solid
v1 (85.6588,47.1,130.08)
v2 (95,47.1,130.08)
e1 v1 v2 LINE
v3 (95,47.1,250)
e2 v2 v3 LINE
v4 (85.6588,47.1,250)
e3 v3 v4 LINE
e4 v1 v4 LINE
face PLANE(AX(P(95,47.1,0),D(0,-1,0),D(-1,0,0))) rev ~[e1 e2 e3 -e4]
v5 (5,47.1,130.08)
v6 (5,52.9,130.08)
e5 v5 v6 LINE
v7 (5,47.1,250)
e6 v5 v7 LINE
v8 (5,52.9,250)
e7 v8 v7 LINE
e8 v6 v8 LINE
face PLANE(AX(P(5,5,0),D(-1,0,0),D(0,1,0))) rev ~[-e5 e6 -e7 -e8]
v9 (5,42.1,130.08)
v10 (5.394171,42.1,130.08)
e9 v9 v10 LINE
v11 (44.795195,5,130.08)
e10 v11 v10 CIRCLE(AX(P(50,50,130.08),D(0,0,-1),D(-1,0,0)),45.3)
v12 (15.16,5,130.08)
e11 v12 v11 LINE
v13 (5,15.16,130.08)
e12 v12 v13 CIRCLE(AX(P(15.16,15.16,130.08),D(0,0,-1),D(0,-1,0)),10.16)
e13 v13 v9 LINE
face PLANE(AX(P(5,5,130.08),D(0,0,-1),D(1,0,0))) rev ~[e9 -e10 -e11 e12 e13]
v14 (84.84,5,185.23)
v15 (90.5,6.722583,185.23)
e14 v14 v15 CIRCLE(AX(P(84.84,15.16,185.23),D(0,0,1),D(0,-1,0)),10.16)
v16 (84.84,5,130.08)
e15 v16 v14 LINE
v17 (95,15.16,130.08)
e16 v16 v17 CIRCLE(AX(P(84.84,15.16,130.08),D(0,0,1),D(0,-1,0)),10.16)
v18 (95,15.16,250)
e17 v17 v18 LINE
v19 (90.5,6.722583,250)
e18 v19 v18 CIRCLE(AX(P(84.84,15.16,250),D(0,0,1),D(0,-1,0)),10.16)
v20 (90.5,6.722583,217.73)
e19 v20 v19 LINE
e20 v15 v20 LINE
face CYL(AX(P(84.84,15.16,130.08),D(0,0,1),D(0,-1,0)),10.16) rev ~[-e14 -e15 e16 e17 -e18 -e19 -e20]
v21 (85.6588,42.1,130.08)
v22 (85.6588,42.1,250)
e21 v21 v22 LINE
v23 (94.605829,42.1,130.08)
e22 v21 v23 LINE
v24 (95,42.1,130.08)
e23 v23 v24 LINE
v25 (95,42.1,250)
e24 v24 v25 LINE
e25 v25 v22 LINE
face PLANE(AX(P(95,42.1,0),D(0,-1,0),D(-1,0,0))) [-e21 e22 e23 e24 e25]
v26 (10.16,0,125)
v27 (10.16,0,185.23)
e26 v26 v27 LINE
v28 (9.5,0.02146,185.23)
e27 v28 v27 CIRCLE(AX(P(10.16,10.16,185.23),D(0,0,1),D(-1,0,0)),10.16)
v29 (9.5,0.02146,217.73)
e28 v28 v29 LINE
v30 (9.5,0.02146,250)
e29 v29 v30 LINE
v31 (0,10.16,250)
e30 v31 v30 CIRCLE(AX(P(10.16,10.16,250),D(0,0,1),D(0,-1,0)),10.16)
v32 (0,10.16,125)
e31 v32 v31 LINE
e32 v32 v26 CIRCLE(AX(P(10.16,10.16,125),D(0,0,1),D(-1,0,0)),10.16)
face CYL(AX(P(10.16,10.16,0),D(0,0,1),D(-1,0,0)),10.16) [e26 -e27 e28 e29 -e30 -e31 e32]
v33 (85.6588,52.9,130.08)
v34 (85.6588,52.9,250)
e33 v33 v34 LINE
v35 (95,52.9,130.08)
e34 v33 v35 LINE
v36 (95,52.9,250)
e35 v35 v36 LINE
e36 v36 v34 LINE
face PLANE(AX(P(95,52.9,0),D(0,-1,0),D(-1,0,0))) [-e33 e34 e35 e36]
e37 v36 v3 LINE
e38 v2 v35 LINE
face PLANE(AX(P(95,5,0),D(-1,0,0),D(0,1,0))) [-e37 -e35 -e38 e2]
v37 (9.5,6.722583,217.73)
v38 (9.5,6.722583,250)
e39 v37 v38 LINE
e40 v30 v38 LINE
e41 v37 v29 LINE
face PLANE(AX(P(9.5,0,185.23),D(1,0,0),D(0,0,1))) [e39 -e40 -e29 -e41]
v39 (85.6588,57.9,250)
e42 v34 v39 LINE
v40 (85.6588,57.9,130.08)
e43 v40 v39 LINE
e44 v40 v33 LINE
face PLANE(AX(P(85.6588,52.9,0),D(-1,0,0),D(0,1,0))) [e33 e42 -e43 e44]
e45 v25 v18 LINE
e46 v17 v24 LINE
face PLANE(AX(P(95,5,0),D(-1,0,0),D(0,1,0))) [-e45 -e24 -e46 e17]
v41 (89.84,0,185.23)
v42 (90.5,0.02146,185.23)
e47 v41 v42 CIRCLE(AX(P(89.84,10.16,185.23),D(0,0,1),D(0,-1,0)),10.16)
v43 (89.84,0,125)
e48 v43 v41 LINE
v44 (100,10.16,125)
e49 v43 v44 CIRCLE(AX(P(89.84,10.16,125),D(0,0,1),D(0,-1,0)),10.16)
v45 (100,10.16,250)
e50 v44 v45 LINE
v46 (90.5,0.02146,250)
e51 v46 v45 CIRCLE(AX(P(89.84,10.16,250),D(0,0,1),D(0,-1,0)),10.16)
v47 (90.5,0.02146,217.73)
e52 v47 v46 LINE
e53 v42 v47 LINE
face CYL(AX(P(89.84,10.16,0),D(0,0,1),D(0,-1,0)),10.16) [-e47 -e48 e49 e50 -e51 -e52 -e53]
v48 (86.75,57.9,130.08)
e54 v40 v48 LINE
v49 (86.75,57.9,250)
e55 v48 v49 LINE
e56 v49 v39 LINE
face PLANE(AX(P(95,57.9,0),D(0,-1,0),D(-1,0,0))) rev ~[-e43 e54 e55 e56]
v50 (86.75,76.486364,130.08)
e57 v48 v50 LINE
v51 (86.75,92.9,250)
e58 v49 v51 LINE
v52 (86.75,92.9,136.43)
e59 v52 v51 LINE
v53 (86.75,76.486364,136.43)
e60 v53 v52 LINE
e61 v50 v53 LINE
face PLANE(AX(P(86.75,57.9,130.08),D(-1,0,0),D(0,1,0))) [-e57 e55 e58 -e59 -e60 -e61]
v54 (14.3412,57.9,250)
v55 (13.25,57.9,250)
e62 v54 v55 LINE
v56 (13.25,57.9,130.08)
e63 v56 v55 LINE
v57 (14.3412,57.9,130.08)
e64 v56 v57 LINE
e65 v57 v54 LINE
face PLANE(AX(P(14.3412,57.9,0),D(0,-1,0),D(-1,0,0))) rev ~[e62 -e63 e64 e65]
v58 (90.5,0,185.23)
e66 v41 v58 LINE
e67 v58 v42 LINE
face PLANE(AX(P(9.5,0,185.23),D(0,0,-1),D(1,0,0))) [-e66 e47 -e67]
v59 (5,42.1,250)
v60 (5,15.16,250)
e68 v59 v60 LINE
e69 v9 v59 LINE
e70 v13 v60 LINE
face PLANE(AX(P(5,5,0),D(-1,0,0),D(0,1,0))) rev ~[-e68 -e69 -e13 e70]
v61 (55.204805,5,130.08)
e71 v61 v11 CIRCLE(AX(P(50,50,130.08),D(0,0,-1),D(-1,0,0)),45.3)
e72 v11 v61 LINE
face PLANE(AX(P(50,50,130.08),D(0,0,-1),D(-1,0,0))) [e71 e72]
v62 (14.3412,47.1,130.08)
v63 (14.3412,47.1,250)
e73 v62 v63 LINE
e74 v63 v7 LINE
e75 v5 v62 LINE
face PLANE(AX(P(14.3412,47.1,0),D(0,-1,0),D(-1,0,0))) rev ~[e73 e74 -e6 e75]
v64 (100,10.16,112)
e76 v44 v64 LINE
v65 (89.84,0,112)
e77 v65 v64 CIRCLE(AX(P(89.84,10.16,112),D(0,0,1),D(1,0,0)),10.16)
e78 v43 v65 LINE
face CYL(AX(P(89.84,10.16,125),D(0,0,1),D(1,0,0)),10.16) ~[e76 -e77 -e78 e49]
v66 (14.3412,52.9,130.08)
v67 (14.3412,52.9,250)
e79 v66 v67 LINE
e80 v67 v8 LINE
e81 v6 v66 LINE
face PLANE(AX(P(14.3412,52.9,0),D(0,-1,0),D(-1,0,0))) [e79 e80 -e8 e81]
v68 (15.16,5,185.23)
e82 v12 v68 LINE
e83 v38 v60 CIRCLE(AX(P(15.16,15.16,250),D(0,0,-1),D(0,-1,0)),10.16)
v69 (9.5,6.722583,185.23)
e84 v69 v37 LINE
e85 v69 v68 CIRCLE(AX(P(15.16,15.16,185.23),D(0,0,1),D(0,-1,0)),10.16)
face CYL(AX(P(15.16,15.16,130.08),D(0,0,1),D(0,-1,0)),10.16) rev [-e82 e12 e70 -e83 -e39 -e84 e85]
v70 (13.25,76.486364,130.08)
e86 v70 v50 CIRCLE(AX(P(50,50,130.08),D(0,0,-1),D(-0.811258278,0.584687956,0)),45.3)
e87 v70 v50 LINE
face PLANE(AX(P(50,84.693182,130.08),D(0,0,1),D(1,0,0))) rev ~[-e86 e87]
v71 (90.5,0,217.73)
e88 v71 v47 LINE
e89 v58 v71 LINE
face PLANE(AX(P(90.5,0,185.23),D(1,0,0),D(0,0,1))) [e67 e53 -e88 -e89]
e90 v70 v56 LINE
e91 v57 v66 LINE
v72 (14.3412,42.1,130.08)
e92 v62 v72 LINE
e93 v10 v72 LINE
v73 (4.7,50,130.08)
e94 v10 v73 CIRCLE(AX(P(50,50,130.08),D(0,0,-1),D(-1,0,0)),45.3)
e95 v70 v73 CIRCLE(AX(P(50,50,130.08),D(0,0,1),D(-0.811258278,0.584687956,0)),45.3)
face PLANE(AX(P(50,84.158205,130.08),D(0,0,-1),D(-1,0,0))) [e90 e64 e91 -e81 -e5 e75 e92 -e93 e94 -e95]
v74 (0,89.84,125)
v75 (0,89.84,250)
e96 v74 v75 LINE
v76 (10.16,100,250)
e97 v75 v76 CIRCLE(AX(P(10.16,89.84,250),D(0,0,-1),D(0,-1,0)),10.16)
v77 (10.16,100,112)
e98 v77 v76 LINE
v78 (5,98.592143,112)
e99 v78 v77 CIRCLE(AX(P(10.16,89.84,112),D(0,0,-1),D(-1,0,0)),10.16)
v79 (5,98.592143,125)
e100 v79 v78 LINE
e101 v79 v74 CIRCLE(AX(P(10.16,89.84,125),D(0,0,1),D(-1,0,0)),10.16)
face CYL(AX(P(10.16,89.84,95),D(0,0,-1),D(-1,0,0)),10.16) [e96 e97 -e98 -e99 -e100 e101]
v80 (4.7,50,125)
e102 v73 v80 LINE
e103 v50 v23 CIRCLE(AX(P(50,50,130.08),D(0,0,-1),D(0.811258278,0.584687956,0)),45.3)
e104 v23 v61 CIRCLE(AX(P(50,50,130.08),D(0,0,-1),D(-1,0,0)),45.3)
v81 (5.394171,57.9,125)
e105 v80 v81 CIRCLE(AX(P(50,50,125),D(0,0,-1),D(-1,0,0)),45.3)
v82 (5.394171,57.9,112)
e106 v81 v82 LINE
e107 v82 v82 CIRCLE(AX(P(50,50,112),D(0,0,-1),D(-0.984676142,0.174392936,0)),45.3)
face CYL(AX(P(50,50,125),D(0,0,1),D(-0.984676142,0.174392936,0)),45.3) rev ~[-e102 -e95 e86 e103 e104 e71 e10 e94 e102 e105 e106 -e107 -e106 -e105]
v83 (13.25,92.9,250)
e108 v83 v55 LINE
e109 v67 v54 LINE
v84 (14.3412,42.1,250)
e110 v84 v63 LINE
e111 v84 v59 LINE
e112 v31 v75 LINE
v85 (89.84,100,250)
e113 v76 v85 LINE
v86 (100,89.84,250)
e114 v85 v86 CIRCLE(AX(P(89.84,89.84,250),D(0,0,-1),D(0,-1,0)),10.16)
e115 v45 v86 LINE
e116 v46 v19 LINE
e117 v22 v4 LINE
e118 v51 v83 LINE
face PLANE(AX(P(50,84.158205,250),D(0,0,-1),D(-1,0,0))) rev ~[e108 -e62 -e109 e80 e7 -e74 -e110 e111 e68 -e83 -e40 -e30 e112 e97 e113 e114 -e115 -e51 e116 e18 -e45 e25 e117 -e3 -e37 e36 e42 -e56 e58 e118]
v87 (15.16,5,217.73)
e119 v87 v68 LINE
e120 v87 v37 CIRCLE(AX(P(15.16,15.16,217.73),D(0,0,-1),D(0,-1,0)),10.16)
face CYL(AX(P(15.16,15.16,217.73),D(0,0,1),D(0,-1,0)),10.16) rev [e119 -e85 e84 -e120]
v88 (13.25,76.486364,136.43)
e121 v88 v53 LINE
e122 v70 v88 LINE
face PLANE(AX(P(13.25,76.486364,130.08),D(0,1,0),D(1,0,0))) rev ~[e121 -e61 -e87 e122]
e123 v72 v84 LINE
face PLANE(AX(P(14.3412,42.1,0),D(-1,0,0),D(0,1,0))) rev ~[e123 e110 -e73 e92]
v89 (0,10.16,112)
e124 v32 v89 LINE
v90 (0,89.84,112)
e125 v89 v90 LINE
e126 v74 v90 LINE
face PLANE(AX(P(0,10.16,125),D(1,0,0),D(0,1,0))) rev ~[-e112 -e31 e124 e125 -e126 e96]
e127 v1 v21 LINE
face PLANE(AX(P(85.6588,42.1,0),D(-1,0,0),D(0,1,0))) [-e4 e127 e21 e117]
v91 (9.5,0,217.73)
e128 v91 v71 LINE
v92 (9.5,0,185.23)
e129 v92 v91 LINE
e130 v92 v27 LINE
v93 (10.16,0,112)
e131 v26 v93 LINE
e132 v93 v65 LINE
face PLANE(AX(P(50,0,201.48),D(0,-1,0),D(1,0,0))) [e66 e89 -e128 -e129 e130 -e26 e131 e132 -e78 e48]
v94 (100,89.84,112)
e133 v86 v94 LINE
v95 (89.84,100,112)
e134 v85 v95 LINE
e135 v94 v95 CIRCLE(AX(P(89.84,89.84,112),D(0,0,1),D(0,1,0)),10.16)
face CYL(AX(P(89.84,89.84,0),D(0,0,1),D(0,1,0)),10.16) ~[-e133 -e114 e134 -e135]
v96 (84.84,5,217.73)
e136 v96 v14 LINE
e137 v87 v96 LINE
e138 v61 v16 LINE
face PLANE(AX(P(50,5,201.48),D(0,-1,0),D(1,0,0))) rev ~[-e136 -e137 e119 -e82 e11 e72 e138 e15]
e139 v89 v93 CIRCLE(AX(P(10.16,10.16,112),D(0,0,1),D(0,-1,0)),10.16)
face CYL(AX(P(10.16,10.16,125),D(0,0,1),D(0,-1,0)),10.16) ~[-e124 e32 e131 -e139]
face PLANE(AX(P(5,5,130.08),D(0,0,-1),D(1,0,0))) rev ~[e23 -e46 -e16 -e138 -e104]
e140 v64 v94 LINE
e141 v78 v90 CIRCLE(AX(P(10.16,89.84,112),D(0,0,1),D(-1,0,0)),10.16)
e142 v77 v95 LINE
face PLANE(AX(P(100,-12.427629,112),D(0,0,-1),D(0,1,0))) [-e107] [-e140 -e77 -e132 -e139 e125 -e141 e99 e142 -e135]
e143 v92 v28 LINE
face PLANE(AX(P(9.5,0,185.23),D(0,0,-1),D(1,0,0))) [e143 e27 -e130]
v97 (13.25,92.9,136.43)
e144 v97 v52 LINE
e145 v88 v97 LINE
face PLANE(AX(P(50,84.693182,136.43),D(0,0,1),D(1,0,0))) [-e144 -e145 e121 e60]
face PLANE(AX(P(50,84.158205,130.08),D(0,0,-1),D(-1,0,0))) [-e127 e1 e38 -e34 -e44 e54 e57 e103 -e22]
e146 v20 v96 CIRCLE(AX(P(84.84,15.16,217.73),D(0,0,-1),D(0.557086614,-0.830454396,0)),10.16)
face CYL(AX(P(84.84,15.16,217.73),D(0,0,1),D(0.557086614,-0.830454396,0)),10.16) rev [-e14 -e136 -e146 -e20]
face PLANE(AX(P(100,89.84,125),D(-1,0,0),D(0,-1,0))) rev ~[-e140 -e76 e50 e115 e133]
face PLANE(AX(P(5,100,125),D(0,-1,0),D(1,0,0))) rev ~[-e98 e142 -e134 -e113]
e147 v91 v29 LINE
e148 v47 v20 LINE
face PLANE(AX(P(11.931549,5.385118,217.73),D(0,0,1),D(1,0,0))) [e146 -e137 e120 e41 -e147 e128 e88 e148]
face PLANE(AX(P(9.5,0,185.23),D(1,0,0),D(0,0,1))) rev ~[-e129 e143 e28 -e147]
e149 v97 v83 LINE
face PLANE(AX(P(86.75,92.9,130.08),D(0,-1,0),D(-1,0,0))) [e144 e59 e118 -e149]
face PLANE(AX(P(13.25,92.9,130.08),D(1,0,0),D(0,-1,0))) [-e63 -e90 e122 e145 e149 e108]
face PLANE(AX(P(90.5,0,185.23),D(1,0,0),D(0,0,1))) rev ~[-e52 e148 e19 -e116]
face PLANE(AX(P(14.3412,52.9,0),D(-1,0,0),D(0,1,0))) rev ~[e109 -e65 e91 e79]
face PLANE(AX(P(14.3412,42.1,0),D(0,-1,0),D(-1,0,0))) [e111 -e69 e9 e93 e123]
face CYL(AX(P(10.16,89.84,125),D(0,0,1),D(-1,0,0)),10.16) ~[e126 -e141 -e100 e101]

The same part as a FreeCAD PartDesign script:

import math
import FreeCAD as App
import Part
import Sketcher

V = App.Vector
Q = App.Units.Quantity


def edges_at(feature, points):
    """Names of the edges that pass closest to the given points."""
    edges = feature.Shape.Edges
    near = lambda p: min(range(len(edges)), key=lambda i: edges[i].distToShape(Part.Vertex(*p))[0])
    return sorted({f"Edge{near(p) + 1}" for p in points})


def add_polygon(sketch, points):
    """Adds a closed chain of lines whose ends are joined by coincident constraints."""
    first, n = sketch.GeometryCount, len(points)
    for a, b in zip(points, points[1:] + points[:1]):
        sketch.addGeometry(Part.LineSegment(App.Vector(*a, 0), App.Vector(*b, 0)), False)
    for i in range(n):
        sketch.addConstraint(Sketcher.Constraint("Coincident", first + i, 2, first + (i + 1) % n, 1))

doc = App.newDocument("Part")
body = doc.addObject("PartDesign::Body", "Body")

# Sketch on XY plane
sketch1 = body.newObject("Sketcher::SketchObject", "Sketch")
sketch1.AttachmentSupport = (doc.getObject("XY_Plane"), [""])
sketch1.MapMode = "FlatFace"
add_polygon(sketch1, [(0, 100), (0, 0), (100, 0), (100, 100)])  # lines 0-3
sketch1.addConstraint([
    Sketcher.Constraint("Vertical", 0),
    Sketcher.Constraint("Horizontal", 1),
    Sketcher.Constraint("Vertical", 2),
    Sketcher.Constraint("Horizontal", 3),
    Sketcher.Constraint("Coincident", 0, 2, -1, 1),
    Sketcher.Constraint("Equal", 3, 0),
    Sketcher.Constraint("DistanceX", 1, 1, 1, 2, Q("100 mm")),
])
pad1 = body.newObject("PartDesign::Pad", "Pad")
pad1.Profile = sketch1
pad1.Length = 250

# Sketch on XY plane
sketch2 = body.newObject("Sketcher::SketchObject", "Sketch001")
sketch2.AttachmentSupport = (doc.getObject("XY_Plane"), [""])
sketch2.MapMode = "FlatFace"
add_polygon(sketch2, [(95, 95), (95, 5), (5, 5), (5, 95)])  # lines 0-3
sketch2.addConstraint([
    Sketcher.Constraint("Vertical", 0),
    Sketcher.Constraint("Horizontal", 1),
    Sketcher.Constraint("Vertical", 2),
    Sketcher.Constraint("Horizontal", 3),
    Sketcher.Constraint("Equal", 3, 0),
    Sketcher.Constraint("DistanceX", 1, 2, 1, 1, Q("90 mm")),
    Sketcher.Constraint("DistanceX", -1, 1, 0, 2, Q("95 mm")),
    Sketcher.Constraint("DistanceY", -1, 1, 0, 2, Q("5 mm")),
])
pocket1 = body.newObject("PartDesign::Pocket", "Pocket")
pocket1.Profile = sketch2
pocket1.Type = "ThroughAll"
pocket1.Reversed = True
doc.recompute()

fillet = body.newObject("PartDesign::Fillet", "Fillet")
fillet.Base = (pocket1, edges_at(pocket1, [
    (0, 100, 125),
    (0, 0, 125),
    (100, 0, 125),
    (100, 100, 125),
]))
fillet.Radius = 10.16

# Sketch on XY plane
sketch3 = body.newObject("Sketcher::SketchObject", "Sketch002")
sketch3.AttachmentSupport = (doc.getObject("XY_Plane"), [""])
sketch3.MapMode = "FlatFace"
add_polygon(sketch3, [(95, 57.9), (95, 52.9), (85.6588, 52.9), (85.6588, 57.9)])  # lines 0-3
add_polygon(sketch3, [(95, 47.1), (95, 42.1), (85.6588, 42.1), (85.6588, 47.1)])  # lines 4-7
add_polygon(sketch3, [(14.3412, 47.1), (14.3412, 42.1), (5, 42.1), (5, 47.1)])  # lines 8-11
add_polygon(sketch3, [(14.3412, 57.9), (14.3412, 52.9), (5, 52.9), (5, 57.9)])  # lines 12-15
sketch3.addConstraint([
    Sketcher.Constraint("Vertical", 0),
    Sketcher.Constraint("Horizontal", 1),
    Sketcher.Constraint("Vertical", 2),
    Sketcher.Constraint("Horizontal", 3),
    Sketcher.Constraint("Vertical", 4),
    Sketcher.Constraint("Horizontal", 5),
    Sketcher.Constraint("Vertical", 6),
    Sketcher.Constraint("Horizontal", 7),
    Sketcher.Constraint("Vertical", 8),
    Sketcher.Constraint("Horizontal", 9),
    Sketcher.Constraint("Vertical", 10),
    Sketcher.Constraint("Horizontal", 11),
    Sketcher.Constraint("Vertical", 12),
    Sketcher.Constraint("Horizontal", 13),
    Sketcher.Constraint("Vertical", 14),
    Sketcher.Constraint("Horizontal", 15),
    Sketcher.Constraint("Horizontal", 5, 2, 8, 2),
    Sketcher.Constraint("Horizontal", 7, 2, 10, 2),
    Sketcher.Constraint("Horizontal", 1, 2, 12, 2),
    Sketcher.Constraint("Horizontal", 3, 2, 14, 2),
    Sketcher.Constraint("Vertical", 3, 2, 4, 2),
    Sketcher.Constraint("Vertical", 2, 2, 5, 2),
    Sketcher.Constraint("Vertical", 11, 2, 12, 2),
    Sketcher.Constraint("Vertical", 10, 2, 13, 2),
    Sketcher.Constraint("Equal", 7, 9),
    Sketcher.Constraint("Equal", 2, 4),
    Sketcher.Constraint("DistanceY", 0, 2, 0, 1, Q("5 mm")),
    Sketcher.Constraint("DistanceX", -1, 1, 0, 2, Q("95 mm")),
    Sketcher.Constraint("DistanceX", -1, 1, 9, 2, Q("5 mm")),
    Sketcher.Constraint("DistanceY", -1, 1, 0, 2, Q("52.9 mm")),
    Sketcher.Constraint("DistanceY", -1, 1, 4, 2, Q("42.1 mm")),
    Sketcher.Constraint("DistanceX", 1, 2, 1, 1, Q("9.3412 mm")),
])
pad2 = body.newObject("PartDesign::Pad", "Pad001")
pad2.Profile = sketch3
pad2.Length = 250

# Sketch on XZ plane
sketch4 = body.newObject("Sketcher::SketchObject", "Sketch003")
sketch4.AttachmentSupport = (doc.getObject("XZ_Plane"), [""])
sketch4.MapMode = "FlatFace"
sketch4.AttachmentOffset = App.Placement(V(0, 0, -100), App.Rotation())
add_polygon(sketch4, [(0, 0), (0, 125), (100, 125), (100, 0)])  # lines 0-3
sketch4.addConstraint([
    Sketcher.Constraint("Vertical", 0),
    Sketcher.Constraint("Horizontal", 1),
    Sketcher.Constraint("Vertical", 2),
    Sketcher.Constraint("Horizontal", 3),
    Sketcher.Constraint("Coincident", 3, 2, -1, 1),
    Sketcher.Constraint("DistanceX", 1, 1, 1, 2, Q("100 mm")),
    Sketcher.Constraint("DistanceY", 0, 1, 0, 2, Q("125 mm")),
])
pocket2 = body.newObject("PartDesign::Pocket", "Pocket001")
pocket2.Profile = sketch4
pocket2.Type = "ThroughAll"
pocket2.Reversed = True

# Sketch on XZ plane
sketch5 = body.newObject("Sketcher::SketchObject", "Sketch004")
sketch5.AttachmentSupport = (doc.getObject("XZ_Plane"), [""])
sketch5.MapMode = "FlatFace"
sketch5.AttachmentOffset = App.Placement(V(0, 0, -5), App.Rotation())
add_polygon(sketch5, [(5, 125), (5, 130.08), (95, 130.08), (95, 125)])  # lines 0-3
sketch5.addConstraint([
    Sketcher.Constraint("Vertical", 0),
    Sketcher.Constraint("Horizontal", 1),
    Sketcher.Constraint("Vertical", 2),
    Sketcher.Constraint("Horizontal", 3),
    Sketcher.Constraint("DistanceX", 1, 1, 1, 2, Q("90 mm")),
    Sketcher.Constraint("DistanceX", -1, 1, 0, 2, Q("5 mm")),
    Sketcher.Constraint("DistanceY", -1, 1, 2, 2, Q("125 mm")),
    Sketcher.Constraint("DistanceY", 0, 1, 0, 2, Q("5.08 mm")),
])
pad3 = body.newObject("PartDesign::Pad", "Pad002")
pad3.Profile = sketch5
pad3.Length = 95
pad3.Reversed = True

# Sketch on XY plane
sketch6 = body.newObject("Sketcher::SketchObject", "Sketch005")
sketch6.AttachmentSupport = (doc.getObject("XY_Plane"), [""])
sketch6.MapMode = "FlatFace"
sketch6.AttachmentOffset = App.Placement(V(0, 0, 125), App.Rotation())
sketch6.addGeometry(Part.Circle(V(50, 50, 0), V(0, 0, 1), 45.3), False)
sketch6.addConstraint([
    Sketcher.Constraint("Diameter", 0, Q("90.6 mm")),
    Sketcher.Constraint("DistanceX", -1, 1, 0, 3, Q("50 mm")),
    Sketcher.Constraint("DistanceY", -1, 1, 0, 3, Q("50 mm")),
])
pocket3 = body.newObject("PartDesign::Pocket", "Pocket002")
pocket3.Profile = sketch6
pocket3.Length = 5.08
pocket3.Reversed = True

# Sketch on XY plane
sketch7 = body.newObject("Sketcher::SketchObject", "Sketch006")
sketch7.AttachmentSupport = (doc.getObject("XY_Plane"), [""])
sketch7.MapMode = "FlatFace"
sketch7.AttachmentOffset = App.Placement(V(0, 0, 125), App.Rotation())
sketch7.addGeometry(Part.Circle(V(50, 50, 0), V(0, 0, 1), 48.3), False)
sketch7.addConstraint([
    Sketcher.Constraint("Diameter", 0, Q("96.6 mm")),
    Sketcher.Constraint("DistanceX", -1, 1, 0, 3, Q("50 mm")),
    Sketcher.Constraint("DistanceY", -1, 1, 0, 3, Q("50 mm")),
])
pad4 = body.newObject("PartDesign::Pad", "Pad003")
pad4.Profile = sketch7
pad4.Length = 30
pad4.Reversed = True

# Sketch on XY plane
sketch8 = body.newObject("Sketcher::SketchObject", "Sketch007")
sketch8.AttachmentSupport = (doc.getObject("XY_Plane"), [""])
sketch8.MapMode = "FlatFace"
sketch8.AttachmentOffset = App.Placement(V(0, 0, 95), App.Rotation())
sketch8.addGeometry(Part.Circle(V(50, 50, 0), V(0, 0, 1), 45.3), False)
sketch8.addConstraint([
    Sketcher.Constraint("Diameter", 0, Q("90.6 mm")),
    Sketcher.Constraint("DistanceX", -1, 1, 0, 3, Q("50 mm")),
    Sketcher.Constraint("DistanceY", -1, 1, 0, 3, Q("50 mm")),
])
pocket4 = body.newObject("PartDesign::Pocket", "Pocket003")
pocket4.Profile = sketch8
pocket4.Length = 30
pocket4.Reversed = True

# Sketch on XZ plane
sketch9 = body.newObject("Sketcher::SketchObject", "Sketch008")
sketch9.AttachmentSupport = (doc.getObject("XZ_Plane"), [""])
sketch9.MapMode = "FlatFace"
add_polygon(sketch9, [(18.25, 250), (18.25, 186.5), (81.75, 186.5), (81.75, 250)])  # lines 0-3
sketch9.addConstraint([
    Sketcher.Constraint("Vertical", 0),
    Sketcher.Constraint("Horizontal", 1),
    Sketcher.Constraint("Vertical", 2),
    Sketcher.Constraint("Horizontal", 3),
    Sketcher.Constraint("Equal", 3, 0),
    Sketcher.Constraint("DistanceX", 1, 1, 1, 2, Q("63.5 mm")),
    Sketcher.Constraint("DistanceY", -1, 1, 2, 2, Q("250 mm")),
    Sketcher.Constraint("DistanceX", -1, 1, 0, 2, Q("18.25 mm")),
])
pocket5 = body.newObject("PartDesign::Pocket", "Pocket004")
pocket5.Profile = sketch9
pocket5.Length = 5
doc.recompute()

fillet2 = body.newObject("PartDesign::Fillet", "Fillet001")
fillet2.Base = (pocket5, edges_at(pocket5, [(81.75, 0, 218.25), (18.25, 0, 218.25), (50, 0, 186.5)]))
fillet2.Radius = 1.27
doc.recompute()

fillet3 = body.newObject("PartDesign::Fillet", "Fillet002")
fillet3.Base = (fillet2, edges_at(fillet2, [
    (95, 95, 190.04),
    (5, 95, 190.04),
    (5, 5, 190.04),
    (95, 5, 190.04),
]))
fillet3.Radius = 10.16

# Sketch on XY plane
sketch10 = body.newObject("Sketcher::SketchObject", "Sketch009")
sketch10.AttachmentSupport = (doc.getObject("XY_Plane"), [""])
sketch10.MapMode = "FlatFace"
sketch10.AttachmentOffset = App.Placement(V(0, 0, 125), App.Rotation())
sketch10.addGeometry([
    Part.LineSegment(V(5, 100, 0), V(95, 100, 0)),  # 0
    Part.LineSegment(V(95, 100, 0), V(95, 98.592143, 0)),  # 1
    Part.ArcOfCircle(Part.Circle(V(89.84, 89.84, 0), V(0, 0, 1), 10.16), math.radians(0), math.radians(59.477678)),  # 2
    Part.LineSegment(V(100, 89.84, 0), V(100, 10.16, 0)),  # 3
    Part.ArcOfCircle(Part.Circle(V(89.84, 10.16, 0), V(0, 0, 1), 10.16), math.radians(-90), math.radians(0)),  # 4
    Part.LineSegment(V(89.84, 0, 0), V(10.16, 0, 0)),  # 5
    Part.ArcOfCircle(Part.Circle(V(10.16, 10.16, 0), V(0, 0, 1), 10.16), math.radians(180), math.radians(270)),  # 6
    Part.LineSegment(V(0, 10.16, 0), V(0, 89.84, 0)),  # 7
    Part.ArcOfCircle(Part.Circle(V(10.16, 89.84, 0), V(0, 0, 1), 10.16), math.radians(120.522322), math.radians(180)),  # 8
    Part.LineSegment(V(5, 98.592143, 0), V(5, 100, 0)),  # 9
], False)
sketch10.addConstraint([
    Sketcher.Constraint("Coincident", 0, 2, 1, 1),
    Sketcher.Constraint("Coincident", 1, 2, 2, 2),
    Sketcher.Constraint("Tangent", 2, 1, 3, 1),
    Sketcher.Constraint("Tangent", 3, 2, 4, 2),
    Sketcher.Constraint("Tangent", 4, 1, 5, 1),
    Sketcher.Constraint("Tangent", 5, 2, 6, 2),
    Sketcher.Constraint("Tangent", 6, 1, 7, 1),
    Sketcher.Constraint("Tangent", 7, 2, 8, 2),
    Sketcher.Constraint("Coincident", 8, 1, 9, 1),
    Sketcher.Constraint("Coincident", 9, 2, 0, 1),
    Sketcher.Constraint("Horizontal", 0),
    Sketcher.Constraint("Vertical", 1),
    Sketcher.Constraint("Vertical", 3),
    Sketcher.Constraint("Horizontal", 5),
    Sketcher.Constraint("Vertical", 7),
    Sketcher.Constraint("Vertical", 9),
    Sketcher.Constraint("Equal", 2, 4),
    Sketcher.Constraint("Equal", 4, 6),
    Sketcher.Constraint("Equal", 6, 8),
    Sketcher.Constraint("PointOnObject", 4, 1, -1),
    Sketcher.Constraint("PointOnObject", 6, 1, -2),
    Sketcher.Constraint("Horizontal", 2, 3, 8, 3),
    Sketcher.Constraint("Horizontal", 1, 2, 8, 1),
    Sketcher.Constraint("Equal", 5, 3),
    Sketcher.Constraint("DistanceX", 0, 1, 0, 2, Q("90 mm")),
    Sketcher.Constraint("Radius", 2, Q("10.16 mm")),
    Sketcher.Constraint("DistanceX", -1, 1, 0, 2, Q("95 mm")),
    Sketcher.Constraint("DistanceY", -1, 1, 0, 2, Q("100 mm")),
])
pad5 = body.newObject("PartDesign::Pad", "Pad004")
pad5.Profile = sketch10
pad5.Length = 30
pad5.Reversed = True

# Sketch on XY plane
sketch11 = body.newObject("Sketcher::SketchObject", "Sketch010")
sketch11.AttachmentSupport = (doc.getObject("XY_Plane"), [""])
sketch11.MapMode = "FlatFace"
sketch11.AttachmentOffset = App.Placement(V(0, 0, 125), App.Rotation())
sketch11.addGeometry(Part.Circle(V(50, 50, 0), V(0, 0, 1), 45.3), False)
sketch11.addConstraint([
    Sketcher.Constraint("Diameter", 0, Q("90.6 mm")),
    Sketcher.Constraint("DistanceX", -1, 1, 0, 3, Q("50 mm")),
    Sketcher.Constraint("DistanceY", -1, 1, 0, 3, Q("50 mm")),
])
pocket6 = body.newObject("PartDesign::Pocket", "Pocket005")
pocket6.Profile = sketch11
pocket6.Type = "ThroughAll"

# Sketch on XY plane
sketch12 = body.newObject("Sketcher::SketchObject", "Sketch011")
sketch12.AttachmentSupport = (doc.getObject("XY_Plane"), [""])
sketch12.MapMode = "FlatFace"
sketch12.AttachmentOffset = App.Placement(V(0, 0, 95), App.Rotation())
sketch12.addGeometry([
    Part.LineSegment(V(100, 107.62, 0), V(100, 89.84, 0)),  # 0
    Part.ArcOfCircle(Part.Circle(V(89.84, 89.84, 0), V(0, 0, 1), 10.16), math.radians(0), math.radians(90)),  # 1
    Part.LineSegment(V(89.84, 100, 0), V(10.16, 100, 0)),  # 2
    Part.ArcOfCircle(Part.Circle(V(10.16, 89.84, 0), V(0, 0, 1), 10.16), math.radians(90), math.radians(180)),  # 3
    Part.LineSegment(V(0, 89.84, 0), V(0, 107.62, 0)),  # 4
    Part.LineSegment(V(0, 107.62, 0), V(100, 107.62, 0)),  # 5
], False)
sketch12.addConstraint([
    Sketcher.Constraint("Tangent", 0, 2, 1, 1),
    Sketcher.Constraint("Tangent", 1, 2, 2, 1),
    Sketcher.Constraint("Tangent", 2, 2, 3, 1),
    Sketcher.Constraint("Tangent", 3, 2, 4, 1),
    Sketcher.Constraint("Coincident", 4, 2, 5, 1),
    Sketcher.Constraint("Coincident", 5, 2, 0, 1),
    Sketcher.Constraint("Vertical", 0),
    Sketcher.Constraint("Horizontal", 2),
    Sketcher.Constraint("Vertical", 4),
    Sketcher.Constraint("Horizontal", 5),
    Sketcher.Constraint("Equal", 1, 3),
    Sketcher.Constraint("PointOnObject", 3, 2, -2),
    Sketcher.Constraint("DistanceX", 5, 1, 5, 2, Q("100 mm")),
    Sketcher.Constraint("Radius", 1, Q("10.16 mm")),
    Sketcher.Constraint("DistanceY", -1, 1, 1, 2, Q("100 mm")),
    Sketcher.Constraint("DistanceY", 0, 2, 0, 1, Q("17.78 mm")),
])
pocket7 = body.newObject("PartDesign::Pocket", "Pocket006")
pocket7.Profile = sketch12
pocket7.Type = "ThroughAll"
pocket7.Reversed = True

# Sketch on XZ plane
sketch13 = body.newObject("Sketcher::SketchObject", "Sketch012")
sketch13.AttachmentSupport = (doc.getObject("XZ_Plane"), [""])
sketch13.MapMode = "FlatFace"
add_polygon(sketch13, [(9.5, 250), (9.5, 185.23), (90.5, 185.23), (90.5, 250)])  # lines 0-3
sketch13.addConstraint([
    Sketcher.Constraint("Vertical", 0),
    Sketcher.Constraint("Horizontal", 1),
    Sketcher.Constraint("Vertical", 2),
    Sketcher.Constraint("Horizontal", 3),
    Sketcher.Constraint("DistanceX", 1, 1, 1, 2, Q("81 mm")),
    Sketcher.Constraint("DistanceY", -1, 1, 2, 2, Q("250 mm")),
    Sketcher.Constraint("DistanceY", 0, 2, 0, 1, Q("64.77 mm")),
    Sketcher.Constraint("DistanceX", -1, 1, 0, 2, Q("9.5 mm")),
])
pocket8 = body.newObject("PartDesign::Pocket", "Pocket007")
pocket8.Profile = sketch13
pocket8.Length = 25.4

# Sketch on XZ plane
sketch14 = body.newObject("Sketcher::SketchObject", "Sketch013")
sketch14.AttachmentSupport = (doc.getObject("XZ_Plane"), [""])
sketch14.MapMode = "FlatFace"
add_polygon(sketch14, [(9.5, 217.73), (9.5, 185.23), (90.5, 185.23), (90.5, 217.73)])  # lines 0-3
sketch14.addConstraint([
    Sketcher.Constraint("Vertical", 0),
    Sketcher.Constraint("Horizontal", 1),
    Sketcher.Constraint("Vertical", 2),
    Sketcher.Constraint("Horizontal", 3),
    Sketcher.Constraint("DistanceX", 1, 1, 1, 2, Q("81 mm")),
    Sketcher.Constraint("DistanceY", 0, 2, 0, 1, Q("32.5 mm")),
    Sketcher.Constraint("DistanceX", -1, 1, 0, 2, Q("9.5 mm")),
    Sketcher.Constraint("DistanceY", -1, 1, 0, 2, Q("185.23 mm")),
])
pad6 = body.newObject("PartDesign::Pad", "Pad005")
pad6.Profile = sketch14
pad6.Length = 5
pad6.Reversed = True

# Sketch on XY plane
sketch15 = body.newObject("Sketcher::SketchObject", "Sketch014")
sketch15.AttachmentSupport = (doc.getObject("XY_Plane"), [""])
sketch15.MapMode = "FlatFace"
sketch15.AttachmentOffset = App.Placement(V(0, 0, 217.73), App.Rotation())
sketch15.addGeometry([
    Part.LineSegment(V(9.5, 5, 0), V(15.16, 5, 0)),  # 0
    Part.ArcOfCircle(Part.Circle(V(15.16, 15.16, 0), V(0, 0, 1), 10.16), math.radians(-123.854556), math.radians(-90)),  # 1
    Part.LineSegment(V(9.5, 6.722583, 0), V(9.5, 5, 0)),  # 2
    Part.ArcOfCircle(Part.Circle(V(84.84, 15.16, 0), V(0, 0, 1), 10.16), math.radians(-90), math.radians(-56.145444)),  # 3
    Part.LineSegment(V(84.84, 5, 0), V(90.5, 5, 0)),  # 4
    Part.LineSegment(V(90.5, 5, 0), V(90.5, 6.722583, 0)),  # 5
], False)
sketch15.addConstraint([
    Sketcher.Constraint("Tangent", 0, 2, 1, 2),
    Sketcher.Constraint("Coincident", 1, 1, 2, 1),
    Sketcher.Constraint("Coincident", 2, 2, 0, 1),
    Sketcher.Constraint("Tangent", 3, 1, 4, 1),
    Sketcher.Constraint("Coincident", 4, 2, 5, 1),
    Sketcher.Constraint("Coincident", 5, 2, 3, 2),
    Sketcher.Constraint("Horizontal", 0),
    Sketcher.Constraint("Vertical", 2),
    Sketcher.Constraint("Horizontal", 4),
    Sketcher.Constraint("Vertical", 5),
    Sketcher.Constraint("Equal", 1, 3),
    Sketcher.Constraint("Horizontal", 1, 3, 3, 3),
    Sketcher.Constraint("Horizontal", 1, 1, 5, 2),
    Sketcher.Constraint("Radius", 1, Q("10.16 mm")),
    Sketcher.Constraint("DistanceY", -1, 1, 0, 2, Q("5 mm")),
    Sketcher.Constraint("DistanceX", 2, 2, 4, 2, Q("81 mm")),
    Sketcher.Constraint("DistanceX", 0, 1, 0, 2, Q("5.66 mm")),
    Sketcher.Constraint("DistanceX", -1, 1, 1, 1, Q("9.5 mm")),
])
pad7 = body.newObject("PartDesign::Pad", "Pad006")
pad7.Profile = sketch15
pad7.Length = 32.5
pad7.Reversed = True

# Sketch on XY plane
sketch16 = body.newObject("Sketcher::SketchObject", "Sketch015")
sketch16.AttachmentSupport = (doc.getObject("XY_Plane"), [""])
sketch16.MapMode = "FlatFace"
sketch16.AttachmentOffset = App.Placement(V(0, 0, 130.08), App.Rotation())
add_polygon(sketch16, [(86.75, 57.9), (95, 57.9), (95, 95), (5, 95), (5, 57.9), (13.25, 57.9), (13.25, 92.9), (86.75, 92.9)])  # lines 0-7
sketch16.addConstraint([
    Sketcher.Constraint("Horizontal", 0),
    Sketcher.Constraint("Vertical", 1),
    Sketcher.Constraint("Horizontal", 2),
    Sketcher.Constraint("Vertical", 3),
    Sketcher.Constraint("Horizontal", 4),
    Sketcher.Constraint("Vertical", 5),
    Sketcher.Constraint("Horizontal", 6),
    Sketcher.Constraint("Vertical", 7),
    Sketcher.Constraint("Horizontal", 0, 2, 3, 2),
    Sketcher.Constraint("Equal", 0, 4),
    Sketcher.Constraint("DistanceX", 2, 2, 2, 1, Q("90 mm")),
    Sketcher.Constraint("DistanceY", 5, 1, 5, 2, Q("35 mm")),
    Sketcher.Constraint("DistanceX", 6, 1, 6, 2, Q("73.5 mm")),
    Sketcher.Constraint("DistanceY", 1, 1, 1, 2, Q("37.1 mm")),
    Sketcher.Constraint("DistanceX", -1, 1, 0, 2, Q("95 mm")),
    Sketcher.Constraint("DistanceY", -1, 1, 1, 2, Q("95 mm")),
])
pad8 = body.newObject("PartDesign::Pad", "Pad007")
pad8.Profile = sketch16
pad8.Length = 119.92

# Sketch on XY plane
sketch17 = body.newObject("Sketcher::SketchObject", "Sketch016")
sketch17.AttachmentSupport = (doc.getObject("XY_Plane"), [""])
sketch17.MapMode = "FlatFace"
sketch17.AttachmentOffset = App.Placement(V(0, 0, 130.08), App.Rotation())
add_polygon(sketch17, [(13.25, 92.9), (13.25, 76.486364), (86.75, 76.486364), (86.75, 92.9)])  # lines 0-3
sketch17.addConstraint([
    Sketcher.Constraint("Vertical", 0),
    Sketcher.Constraint("Horizontal", 1),
    Sketcher.Constraint("Vertical", 2),
    Sketcher.Constraint("Horizontal", 3),
    Sketcher.Constraint("DistanceX", 1, 1, 1, 2, Q("73.5 mm")),
    Sketcher.Constraint("DistanceY", -1, 1, 2, 2, Q("92.9 mm")),
    Sketcher.Constraint("DistanceX", -1, 1, 0, 2, Q("13.25 mm")),
    Sketcher.Constraint("DistanceY", 0, 2, 0, 1, Q("16.413636 mm")),
])
pad9 = body.newObject("PartDesign::Pad", "Pad008")
pad9.Profile = sketch17
pad9.Length = 6.35

# Sketch on YZ plane
sketch18 = body.newObject("Sketcher::SketchObject", "Sketch017")
sketch18.AttachmentSupport = (doc.getObject("YZ_Plane"), [""])
sketch18.MapMode = "FlatFace"
sketch18.AttachmentOffset = App.Placement(V(0, 0, 100), App.Rotation())
add_polygon(sketch18, [(112.756484, 112), (-12.427629, 112), (-12.427629, 95), (112.756484, 95)])  # lines 0-3
sketch18.addConstraint([
    Sketcher.Constraint("Horizontal", 0),
    Sketcher.Constraint("Vertical", 1),
    Sketcher.Constraint("Horizontal", 2),
    Sketcher.Constraint("Vertical", 3),
    Sketcher.Constraint("DistanceY", 1, 2, 1, 1, Q("17 mm")),
    Sketcher.Constraint("DistanceY", -1, 1, 0, 2, Q("112 mm")),
    Sketcher.Constraint("DistanceX", 0, 2, 0, 1, Q("125.184112 mm")),
    Sketcher.Constraint("DistanceX", 0, 2, -1, 1, Q("12.427629 mm")),
])
pocket9 = body.newObject("PartDesign::Pocket", "Pocket008")
pocket9.Profile = sketch18
pocket9.Type = "ThroughAll"

doc.recompute()
